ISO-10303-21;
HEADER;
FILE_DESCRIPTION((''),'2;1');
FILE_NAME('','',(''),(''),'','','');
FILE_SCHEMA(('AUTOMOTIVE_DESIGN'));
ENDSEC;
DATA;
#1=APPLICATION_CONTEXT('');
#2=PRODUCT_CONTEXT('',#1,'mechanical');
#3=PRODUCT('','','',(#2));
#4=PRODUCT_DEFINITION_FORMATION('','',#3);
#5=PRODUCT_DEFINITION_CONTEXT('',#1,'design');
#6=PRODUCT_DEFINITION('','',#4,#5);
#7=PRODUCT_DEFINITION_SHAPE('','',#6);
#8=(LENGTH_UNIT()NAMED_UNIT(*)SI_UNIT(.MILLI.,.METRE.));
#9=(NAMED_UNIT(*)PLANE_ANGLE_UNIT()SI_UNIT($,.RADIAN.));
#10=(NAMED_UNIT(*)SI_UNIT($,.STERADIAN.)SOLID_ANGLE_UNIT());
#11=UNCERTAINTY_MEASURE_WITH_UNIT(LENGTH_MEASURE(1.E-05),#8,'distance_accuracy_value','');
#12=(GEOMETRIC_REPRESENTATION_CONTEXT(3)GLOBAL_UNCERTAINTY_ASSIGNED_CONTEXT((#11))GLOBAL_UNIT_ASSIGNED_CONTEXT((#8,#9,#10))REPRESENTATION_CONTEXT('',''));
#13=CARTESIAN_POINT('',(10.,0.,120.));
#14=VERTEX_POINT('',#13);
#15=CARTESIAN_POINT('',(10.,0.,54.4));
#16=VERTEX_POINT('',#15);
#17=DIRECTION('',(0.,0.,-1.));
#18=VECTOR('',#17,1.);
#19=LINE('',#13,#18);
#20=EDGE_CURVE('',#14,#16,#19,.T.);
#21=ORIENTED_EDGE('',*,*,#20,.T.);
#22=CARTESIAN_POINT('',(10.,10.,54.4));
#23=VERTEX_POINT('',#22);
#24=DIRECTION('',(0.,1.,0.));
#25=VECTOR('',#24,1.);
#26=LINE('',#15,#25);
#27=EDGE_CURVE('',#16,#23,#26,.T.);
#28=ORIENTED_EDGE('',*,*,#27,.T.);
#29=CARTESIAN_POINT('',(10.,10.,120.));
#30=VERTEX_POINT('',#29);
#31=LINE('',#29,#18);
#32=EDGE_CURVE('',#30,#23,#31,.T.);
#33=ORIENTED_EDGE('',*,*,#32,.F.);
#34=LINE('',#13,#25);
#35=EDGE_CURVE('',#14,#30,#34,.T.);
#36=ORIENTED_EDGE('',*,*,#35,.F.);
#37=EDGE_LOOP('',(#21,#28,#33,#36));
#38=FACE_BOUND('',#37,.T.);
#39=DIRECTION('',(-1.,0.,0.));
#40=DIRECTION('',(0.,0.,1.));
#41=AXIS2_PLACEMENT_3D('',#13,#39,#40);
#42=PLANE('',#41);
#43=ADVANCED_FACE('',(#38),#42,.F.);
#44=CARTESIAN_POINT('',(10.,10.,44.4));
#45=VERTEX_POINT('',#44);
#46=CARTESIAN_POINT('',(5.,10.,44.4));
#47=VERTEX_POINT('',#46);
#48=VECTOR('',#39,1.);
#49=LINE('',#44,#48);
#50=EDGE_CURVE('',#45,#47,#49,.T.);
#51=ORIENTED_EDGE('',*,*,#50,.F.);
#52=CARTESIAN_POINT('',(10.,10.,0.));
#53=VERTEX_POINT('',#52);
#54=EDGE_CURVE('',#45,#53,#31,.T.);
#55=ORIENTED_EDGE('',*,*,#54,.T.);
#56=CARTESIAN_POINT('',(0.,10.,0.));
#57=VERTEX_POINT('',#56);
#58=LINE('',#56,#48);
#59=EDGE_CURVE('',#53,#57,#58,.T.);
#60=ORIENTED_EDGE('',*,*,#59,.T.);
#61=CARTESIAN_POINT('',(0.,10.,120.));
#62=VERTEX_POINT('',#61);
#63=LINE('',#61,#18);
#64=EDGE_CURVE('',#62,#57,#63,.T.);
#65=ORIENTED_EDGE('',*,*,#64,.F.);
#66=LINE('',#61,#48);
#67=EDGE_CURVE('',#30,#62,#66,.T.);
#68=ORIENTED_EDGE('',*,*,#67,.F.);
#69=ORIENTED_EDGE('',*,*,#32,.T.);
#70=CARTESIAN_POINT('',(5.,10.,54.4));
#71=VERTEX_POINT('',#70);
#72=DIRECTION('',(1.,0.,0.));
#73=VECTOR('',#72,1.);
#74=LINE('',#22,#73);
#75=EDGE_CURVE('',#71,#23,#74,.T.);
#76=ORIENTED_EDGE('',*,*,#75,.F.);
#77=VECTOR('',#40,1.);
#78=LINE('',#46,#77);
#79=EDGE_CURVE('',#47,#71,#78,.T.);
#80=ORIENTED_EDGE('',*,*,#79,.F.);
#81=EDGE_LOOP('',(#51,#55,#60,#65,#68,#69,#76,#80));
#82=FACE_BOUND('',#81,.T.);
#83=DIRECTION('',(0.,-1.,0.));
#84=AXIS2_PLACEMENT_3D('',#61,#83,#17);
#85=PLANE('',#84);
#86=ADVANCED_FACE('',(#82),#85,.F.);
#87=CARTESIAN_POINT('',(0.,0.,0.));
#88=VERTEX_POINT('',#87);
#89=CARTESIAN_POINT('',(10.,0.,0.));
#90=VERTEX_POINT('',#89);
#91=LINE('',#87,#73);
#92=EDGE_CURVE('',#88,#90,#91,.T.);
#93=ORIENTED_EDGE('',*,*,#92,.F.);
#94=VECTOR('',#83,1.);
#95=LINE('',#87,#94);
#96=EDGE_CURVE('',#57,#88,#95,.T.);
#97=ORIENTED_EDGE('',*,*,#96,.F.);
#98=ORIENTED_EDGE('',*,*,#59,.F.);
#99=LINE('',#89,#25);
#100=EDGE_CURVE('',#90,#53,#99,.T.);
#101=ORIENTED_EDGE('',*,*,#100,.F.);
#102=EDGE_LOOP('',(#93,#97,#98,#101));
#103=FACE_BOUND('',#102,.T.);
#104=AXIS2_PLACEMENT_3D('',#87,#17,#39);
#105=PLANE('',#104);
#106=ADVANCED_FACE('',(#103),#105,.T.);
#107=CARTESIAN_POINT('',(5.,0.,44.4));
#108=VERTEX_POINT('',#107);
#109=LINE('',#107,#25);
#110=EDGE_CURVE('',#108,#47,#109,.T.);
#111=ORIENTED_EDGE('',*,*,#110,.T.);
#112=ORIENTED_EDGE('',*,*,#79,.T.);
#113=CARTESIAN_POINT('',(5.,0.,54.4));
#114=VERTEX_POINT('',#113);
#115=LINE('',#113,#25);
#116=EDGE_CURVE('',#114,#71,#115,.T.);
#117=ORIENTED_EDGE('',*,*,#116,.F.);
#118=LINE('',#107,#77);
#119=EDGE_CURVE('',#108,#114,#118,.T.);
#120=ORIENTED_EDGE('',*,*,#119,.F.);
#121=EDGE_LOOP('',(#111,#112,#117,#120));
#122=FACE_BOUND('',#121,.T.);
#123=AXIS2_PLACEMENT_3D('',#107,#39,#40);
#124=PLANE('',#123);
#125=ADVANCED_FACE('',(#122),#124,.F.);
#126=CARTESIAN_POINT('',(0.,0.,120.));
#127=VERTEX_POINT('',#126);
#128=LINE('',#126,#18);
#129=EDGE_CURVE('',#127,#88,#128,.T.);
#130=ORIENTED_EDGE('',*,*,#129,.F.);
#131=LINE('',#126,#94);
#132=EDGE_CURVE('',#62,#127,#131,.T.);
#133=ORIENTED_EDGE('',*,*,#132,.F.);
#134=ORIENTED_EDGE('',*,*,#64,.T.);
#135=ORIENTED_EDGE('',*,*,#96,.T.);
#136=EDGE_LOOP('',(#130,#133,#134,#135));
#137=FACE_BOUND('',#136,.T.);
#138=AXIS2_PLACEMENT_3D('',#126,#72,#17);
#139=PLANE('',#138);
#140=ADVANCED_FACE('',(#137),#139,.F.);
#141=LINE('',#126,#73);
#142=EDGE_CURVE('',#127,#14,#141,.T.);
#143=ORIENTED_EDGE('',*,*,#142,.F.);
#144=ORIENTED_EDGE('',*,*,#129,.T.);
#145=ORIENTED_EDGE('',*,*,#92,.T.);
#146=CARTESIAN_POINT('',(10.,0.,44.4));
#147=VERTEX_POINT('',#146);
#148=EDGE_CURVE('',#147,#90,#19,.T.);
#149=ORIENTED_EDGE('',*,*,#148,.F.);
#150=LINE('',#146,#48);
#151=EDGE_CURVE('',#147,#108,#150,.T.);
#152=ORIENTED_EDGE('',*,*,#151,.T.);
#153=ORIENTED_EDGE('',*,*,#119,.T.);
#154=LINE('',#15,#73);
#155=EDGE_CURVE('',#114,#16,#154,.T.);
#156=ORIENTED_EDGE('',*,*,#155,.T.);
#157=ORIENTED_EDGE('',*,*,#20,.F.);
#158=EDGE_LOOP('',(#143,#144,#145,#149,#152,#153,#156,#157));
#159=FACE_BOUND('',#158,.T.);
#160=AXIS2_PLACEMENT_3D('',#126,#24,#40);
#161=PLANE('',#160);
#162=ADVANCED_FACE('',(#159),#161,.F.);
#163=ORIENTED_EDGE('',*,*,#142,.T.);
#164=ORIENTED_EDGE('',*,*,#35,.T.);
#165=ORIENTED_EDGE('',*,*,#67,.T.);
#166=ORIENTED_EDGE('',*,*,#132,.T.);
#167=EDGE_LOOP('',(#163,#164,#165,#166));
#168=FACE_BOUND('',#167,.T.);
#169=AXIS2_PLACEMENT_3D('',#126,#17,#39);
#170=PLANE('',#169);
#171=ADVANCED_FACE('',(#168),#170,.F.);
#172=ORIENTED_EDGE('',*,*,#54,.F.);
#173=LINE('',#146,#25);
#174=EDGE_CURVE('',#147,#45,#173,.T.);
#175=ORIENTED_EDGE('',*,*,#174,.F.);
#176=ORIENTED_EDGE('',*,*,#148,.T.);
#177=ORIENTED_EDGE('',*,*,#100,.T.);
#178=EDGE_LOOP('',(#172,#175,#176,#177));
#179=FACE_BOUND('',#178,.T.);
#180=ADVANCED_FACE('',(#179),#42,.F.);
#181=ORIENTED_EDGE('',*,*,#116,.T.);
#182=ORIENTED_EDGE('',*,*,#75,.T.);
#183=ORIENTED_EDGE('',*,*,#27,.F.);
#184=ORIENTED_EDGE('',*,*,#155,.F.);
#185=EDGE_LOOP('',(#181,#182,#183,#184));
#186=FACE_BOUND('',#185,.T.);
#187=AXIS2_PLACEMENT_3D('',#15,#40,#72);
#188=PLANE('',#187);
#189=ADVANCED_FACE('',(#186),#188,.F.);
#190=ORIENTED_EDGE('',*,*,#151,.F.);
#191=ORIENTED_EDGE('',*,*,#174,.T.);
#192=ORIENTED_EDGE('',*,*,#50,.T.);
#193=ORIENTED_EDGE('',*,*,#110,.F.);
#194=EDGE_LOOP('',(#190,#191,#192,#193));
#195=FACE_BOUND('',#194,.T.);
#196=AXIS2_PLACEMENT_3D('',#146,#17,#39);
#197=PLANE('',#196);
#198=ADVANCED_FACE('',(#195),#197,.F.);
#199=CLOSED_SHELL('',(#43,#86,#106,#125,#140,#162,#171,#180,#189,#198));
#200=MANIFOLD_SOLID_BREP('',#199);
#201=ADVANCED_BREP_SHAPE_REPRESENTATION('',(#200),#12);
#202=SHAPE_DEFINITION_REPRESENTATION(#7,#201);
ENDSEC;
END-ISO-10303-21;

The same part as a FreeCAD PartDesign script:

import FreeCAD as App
import Part
import Sketcher

V = App.Vector
Q = App.Units.Quantity


def add_polygon(sketch, points):
    """Adds a closed chain of lines whose ends are joined by coincident constraints."""
    first, n = sketch.GeometryCount, len(points)
    for a, b in zip(points, points[1:] + points[:1]):
        sketch.addGeometry(Part.LineSegment(App.Vector(*a, 0), App.Vector(*b, 0)), False)
    for i in range(n):
        sketch.addConstraint(Sketcher.Constraint("Coincident", first + i, 2, first + (i + 1) % n, 1))

doc = App.newDocument("Part")
body = doc.addObject("PartDesign::Body", "Body")

# Sketch on XY plane
sketch1 = body.newObject("Sketcher::SketchObject", "Sketch")
sketch1.AttachmentSupport = (doc.getObject("XY_Plane"), [""])
sketch1.MapMode = "FlatFace"
add_polygon(sketch1, [(0, 10), (0, 0), (10, 0), (10, 10)])  # lines 0-3
sketch1.addConstraint(Sketcher.Constraint("Vertical", 0))
sketch1.addConstraint(Sketcher.Constraint("Horizontal", 1))
sketch1.addConstraint(Sketcher.Constraint("Vertical", 2))
sketch1.addConstraint(Sketcher.Constraint("Horizontal", 3))
sketch1.addConstraint(Sketcher.Constraint("Coincident", 0, 2, -1, 1))
sketch1.addConstraint(Sketcher.Constraint("Equal", 3, 0))
sketch1.addConstraint(Sketcher.Constraint("DistanceX", 1, 1, 1, 2, Q("10 mm")))
pad1 = body.newObject("PartDesign::Pad", "Pad")
pad1.Profile = sketch1
pad1.Length = 120

# Sketch on XZ plane
sketch2 = body.newObject("Sketcher::SketchObject", "Sketch001")
sketch2.AttachmentSupport = (doc.getObject("XZ_Plane"), [""])
sketch2.MapMode = "FlatFace"
sketch2.AttachmentOffset = App.Placement(V(0, 0, -10), App.Rotation())
add_polygon(sketch2, [(5, 44), (5, 54), (10, 54), (10, 44)])  # lines 0-3
sketch2.addConstraint(Sketcher.Constraint("Vertical", 0))
sketch2.addConstraint(Sketcher.Constraint("Horizontal", 1))
sketch2.addConstraint(Sketcher.Constraint("Vertical", 2))
sketch2.addConstraint(Sketcher.Constraint("Horizontal", 3))
sketch2.addConstraint(Sketcher.Constraint("DistanceX", 1, 1, 1, 2, Q("5 mm")))
sketch2.addConstraint(Sketcher.Constraint("DistanceY", 0, 1, 0, 2, Q("10 mm")))
sketch2.addConstraint(Sketcher.Constraint("DistanceX", -1, 1, 0, 2, Q("5 mm")))
sketch2.addConstraint(Sketcher.Constraint("DistanceY", -1, 1, 0, 2, Q("54.4 mm")))
pocket1 = body.newObject("PartDesign::Pocket", "Pocket")
pocket1.Profile = sketch2
pocket1.Type = "ThroughAll"
pocket1.Reversed = True

doc.recompute()
